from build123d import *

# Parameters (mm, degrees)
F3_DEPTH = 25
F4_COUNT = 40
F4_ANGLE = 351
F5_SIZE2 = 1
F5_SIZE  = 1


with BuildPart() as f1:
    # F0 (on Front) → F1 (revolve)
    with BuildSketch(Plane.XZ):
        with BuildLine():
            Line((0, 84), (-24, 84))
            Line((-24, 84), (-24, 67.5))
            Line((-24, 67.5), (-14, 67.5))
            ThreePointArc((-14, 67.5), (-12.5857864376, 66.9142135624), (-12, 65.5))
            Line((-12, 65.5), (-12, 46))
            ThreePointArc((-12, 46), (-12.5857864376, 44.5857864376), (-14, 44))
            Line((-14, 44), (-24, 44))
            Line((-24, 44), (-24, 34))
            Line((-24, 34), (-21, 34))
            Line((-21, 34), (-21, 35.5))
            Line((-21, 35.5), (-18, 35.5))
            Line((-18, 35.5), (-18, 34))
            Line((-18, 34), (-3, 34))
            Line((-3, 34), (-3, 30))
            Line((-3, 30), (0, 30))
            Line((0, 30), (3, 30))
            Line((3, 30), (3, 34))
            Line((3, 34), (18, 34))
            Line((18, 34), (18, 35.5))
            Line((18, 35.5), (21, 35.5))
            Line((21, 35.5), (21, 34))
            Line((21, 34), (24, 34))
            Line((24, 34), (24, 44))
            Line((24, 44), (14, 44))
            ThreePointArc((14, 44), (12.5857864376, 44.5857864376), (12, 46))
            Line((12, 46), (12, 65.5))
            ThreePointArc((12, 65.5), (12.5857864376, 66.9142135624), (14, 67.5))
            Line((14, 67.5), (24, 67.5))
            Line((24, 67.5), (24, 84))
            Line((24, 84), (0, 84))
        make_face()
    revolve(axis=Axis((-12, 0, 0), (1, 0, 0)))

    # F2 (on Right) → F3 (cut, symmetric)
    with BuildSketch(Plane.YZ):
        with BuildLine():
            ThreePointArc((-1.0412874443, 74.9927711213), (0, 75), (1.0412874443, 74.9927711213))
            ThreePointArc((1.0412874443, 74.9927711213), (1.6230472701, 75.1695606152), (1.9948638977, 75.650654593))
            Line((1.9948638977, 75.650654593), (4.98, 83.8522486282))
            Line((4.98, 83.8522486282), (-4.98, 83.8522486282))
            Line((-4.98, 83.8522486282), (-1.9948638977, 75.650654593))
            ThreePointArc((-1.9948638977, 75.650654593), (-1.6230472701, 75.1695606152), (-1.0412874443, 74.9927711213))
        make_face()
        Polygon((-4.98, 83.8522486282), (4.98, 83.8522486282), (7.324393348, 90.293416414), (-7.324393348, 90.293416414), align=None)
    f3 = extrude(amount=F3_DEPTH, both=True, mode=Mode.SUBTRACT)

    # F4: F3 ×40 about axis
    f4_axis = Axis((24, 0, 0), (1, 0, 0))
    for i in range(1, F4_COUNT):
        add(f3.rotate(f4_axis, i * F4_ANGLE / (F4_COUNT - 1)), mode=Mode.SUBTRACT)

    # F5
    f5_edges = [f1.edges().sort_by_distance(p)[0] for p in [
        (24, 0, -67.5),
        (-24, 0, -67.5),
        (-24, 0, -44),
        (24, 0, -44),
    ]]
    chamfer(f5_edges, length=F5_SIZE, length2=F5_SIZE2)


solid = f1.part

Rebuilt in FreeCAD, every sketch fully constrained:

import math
import FreeCAD as App
import Part
import Sketcher
from FreeCAD import Vector
Q = App.Units.Quantity


def edges_at(feature, points):
    """Names of the edges that pass closest to the given points."""
    edges = feature.Shape.Edges
    near = lambda p: min(range(len(edges)), key=lambda i: edges[i].distToShape(Part.Vertex(*p))[0])
    return sorted({f"Edge{near(p) + 1}" for p in points})

doc = App.newDocument("Part")
params = doc.addObject("Spreadsheet::Sheet", "Params")
for row, (alias, value) in enumerate([
    ("sketch1_radius", "2 mm"),
    ("sketch1_width", "10 mm"),
    ("sketch1_width2", "3 mm"),
    ("sketch1_width3", "15 mm"),
    ("sketch1_width4", "6 mm"),
    ("revolution_angle", "360 deg"),
    ("sketch2_radius", "75 mm"),
    ("sketch2_radius2", "1 mm"),
    ("pocket1_length", "50 mm"),
    ("chamfer_size", "1 mm"),
    ("chamfer_size2", "1 mm"),
], start=1):
    params.set(f"A{row}", alias)
    params.set(f"B{row}", "=" + value)
    params.setAlias(f"B{row}", alias)

body = doc.addObject("PartDesign::Body", "Body")

# Sketch on XZ plane
sketch1 = body.newObject("Sketcher::SketchObject", "Sketch")
sketch1.AttachmentSupport = (doc.getObject("XZ_Plane"), [""])
sketch1.MapMode = "FlatFace"
sketch1.addGeometry(Part.LineSegment(Vector(-24, 84, 0), Vector(-24, 67.5, 0)), False)
sketch1.addGeometry(Part.LineSegment(Vector(-24, 67.5, 0), Vector(-14, 67.5, 0)), False)
sketch1.addGeometry(Part.ArcOfCircle(Part.Circle(Vector(-14, 65.5, 0), Vector(0, 0, 1), 2), math.radians(0), math.radians(90)), False)
sketch1.addGeometry(Part.LineSegment(Vector(-12, 65.5, 0), Vector(-12, 46, 0)), False)
sketch1.addGeometry(Part.ArcOfCircle(Part.Circle(Vector(-14, 46, 0), Vector(0, 0, 1), 2), math.radians(-90), math.radians(0)), False)
sketch1.addGeometry(Part.LineSegment(Vector(-14, 44, 0), Vector(-24, 44, 0)), False)
sketch1.addGeometry(Part.LineSegment(Vector(-24, 44, 0), Vector(-24, 34, 0)), False)
sketch1.addGeometry(Part.LineSegment(Vector(-24, 34, 0), Vector(-21, 34, 0)), False)
sketch1.addGeometry(Part.LineSegment(Vector(-21, 34, 0), Vector(-21, 35.5, 0)), False)
sketch1.addGeometry(Part.LineSegment(Vector(-21, 35.5, 0), Vector(-18, 35.5, 0)), False)
sketch1.addGeometry(Part.LineSegment(Vector(-18, 35.5, 0), Vector(-18, 34, 0)), False)
sketch1.addGeometry(Part.LineSegment(Vector(-18, 34, 0), Vector(-3, 34, 0)), False)
sketch1.addGeometry(Part.LineSegment(Vector(-3, 34, 0), Vector(-3, 30, 0)), False)
sketch1.addGeometry(Part.LineSegment(Vector(-3, 30, 0), Vector(3, 30, 0)), False)
sketch1.addGeometry(Part.LineSegment(Vector(3, 30, 0), Vector(3, 34, 0)), False)
sketch1.addGeometry(Part.LineSegment(Vector(3, 34, 0), Vector(18, 34, 0)), False)
sketch1.addGeometry(Part.LineSegment(Vector(18, 34, 0), Vector(18, 35.5, 0)), False)
sketch1.addGeometry(Part.LineSegment(Vector(18, 35.5, 0), Vector(21, 35.5, 0)), False)
sketch1.addGeometry(Part.LineSegment(Vector(21, 35.5, 0), Vector(21, 34, 0)), False)
sketch1.addGeometry(Part.LineSegment(Vector(21, 34, 0), Vector(24, 34, 0)), False)
sketch1.addGeometry(Part.LineSegment(Vector(24, 34, 0), Vector(24, 44, 0)), False)
sketch1.addGeometry(Part.LineSegment(Vector(24, 44, 0), Vector(14, 44, 0)), False)
sketch1.addGeometry(Part.ArcOfCircle(Part.Circle(Vector(14, 46, 0), Vector(0, 0, 1), 2), math.radians(180), math.radians(270)), False)
sketch1.addGeometry(Part.LineSegment(Vector(12, 46, 0), Vector(12, 65.5, 0)), False)
sketch1.addGeometry(Part.ArcOfCircle(Part.Circle(Vector(14, 65.5, 0), Vector(0, 0, 1), 2), math.radians(90), math.radians(180)), False)
sketch1.addGeometry(Part.LineSegment(Vector(14, 67.5, 0), Vector(24, 67.5, 0)), False)
sketch1.addGeometry(Part.LineSegment(Vector(24, 67.5, 0), Vector(24, 84, 0)), False)
sketch1.addGeometry(Part.LineSegment(Vector(24, 84, 0), Vector(-24, 84, 0)), False)
sketch1.addConstraint(Sketcher.Constraint("Coincident", 0, 2, 1, 1))
sketch1.addConstraint(Sketcher.Constraint("Tangent", 1, 2, 2, 2))
sketch1.addConstraint(Sketcher.Constraint("Tangent", 2, 1, 3, 1))
sketch1.addConstraint(Sketcher.Constraint("Tangent", 3, 2, 4, 2))
sketch1.addConstraint(Sketcher.Constraint("Tangent", 4, 1, 5, 1))
sketch1.addConstraint(Sketcher.Constraint("Coincident", 5, 2, 6, 1))
sketch1.addConstraint(Sketcher.Constraint("Coincident", 6, 2, 7, 1))
sketch1.addConstraint(Sketcher.Constraint("Coincident", 7, 2, 8, 1))
sketch1.addConstraint(Sketcher.Constraint("Coincident", 8, 2, 9, 1))
sketch1.addConstraint(Sketcher.Constraint("Coincident", 9, 2, 10, 1))
sketch1.addConstraint(Sketcher.Constraint("Coincident", 10, 2, 11, 1))
sketch1.addConstraint(Sketcher.Constraint("Coincident", 11, 2, 12, 1))
sketch1.addConstraint(Sketcher.Constraint("Coincident", 12, 2, 13, 1))
sketch1.addConstraint(Sketcher.Constraint("Coincident", 13, 2, 14, 1))
sketch1.addConstraint(Sketcher.Constraint("Coincident", 14, 2, 15, 1))
sketch1.addConstraint(Sketcher.Constraint("Coincident", 15, 2, 16, 1))
sketch1.addConstraint(Sketcher.Constraint("Coincident", 16, 2, 17, 1))
sketch1.addConstraint(Sketcher.Constraint("Coincident", 17, 2, 18, 1))
sketch1.addConstraint(Sketcher.Constraint("Coincident", 18, 2, 19, 1))
sketch1.addConstraint(Sketcher.Constraint("Coincident", 19, 2, 20, 1))
sketch1.addConstraint(Sketcher.Constraint("Coincident", 20, 2, 21, 1))
sketch1.addConstraint(Sketcher.Constraint("Tangent", 21, 2, 22, 2))
sketch1.addConstraint(Sketcher.Constraint("Tangent", 22, 1, 23, 1))
sketch1.addConstraint(Sketcher.Constraint("Tangent", 23, 2, 24, 2))
sketch1.addConstraint(Sketcher.Constraint("Tangent", 24, 1, 25, 1))
sketch1.addConstraint(Sketcher.Constraint("Coincident", 25, 2, 26, 1))
sketch1.addConstraint(Sketcher.Constraint("Coincident", 26, 2, 27, 1))
sketch1.addConstraint(Sketcher.Constraint("Coincident", 27, 2, 0, 1))
sketch1.addConstraint(Sketcher.Constraint("Vertical", 0))
sketch1.addConstraint(Sketcher.Constraint("Horizontal", 1))
sketch1.addConstraint(Sketcher.Constraint("Vertical", 3))
sketch1.addConstraint(Sketcher.Constraint("Horizontal", 5))
sketch1.addConstraint(Sketcher.Constraint("Vertical", 6))
sketch1.addConstraint(Sketcher.Constraint("Horizontal", 7))
sketch1.addConstraint(Sketcher.Constraint("Vertical", 8))
sketch1.addConstraint(Sketcher.Constraint("Horizontal", 9))
sketch1.addConstraint(Sketcher.Constraint("Vertical", 10))
sketch1.addConstraint(Sketcher.Constraint("Horizontal", 11))
sketch1.addConstraint(Sketcher.Constraint("Vertical", 12))
sketch1.addConstraint(Sketcher.Constraint("Horizontal", 13))
sketch1.addConstraint(Sketcher.Constraint("Vertical", 14))
sketch1.addConstraint(Sketcher.Constraint("Horizontal", 15))
sketch1.addConstraint(Sketcher.Constraint("Vertical", 16))
sketch1.addConstraint(Sketcher.Constraint("Horizontal", 17))
sketch1.addConstraint(Sketcher.Constraint("Vertical", 18))
sketch1.addConstraint(Sketcher.Constraint("Horizontal", 19))
sketch1.addConstraint(Sketcher.Constraint("Vertical", 20))
sketch1.addConstraint(Sketcher.Constraint("Horizontal", 21))
sketch1.addConstraint(Sketcher.Constraint("Vertical", 23))
sketch1.addConstraint(Sketcher.Constraint("Horizontal", 25))
sketch1.addConstraint(Sketcher.Constraint("Vertical", 26))
sketch1.addConstraint(Sketcher.Constraint("Horizontal", 27))
sketch1.addConstraint(Sketcher.Constraint("Equal", 2, 4))
sketch1.addConstraint(Sketcher.Constraint("Equal", 4, 22))
sketch1.addConstraint(Sketcher.Constraint("Equal", 22, 24))
sketch1.addConstraint(Sketcher.Constraint("Symmetric", 4, 3, 22, 3, -2))
sketch1.addConstraint(Sketcher.Constraint("Symmetric", 11, 2, 14, 2, -2))
sketch1.addConstraint(Sketcher.Constraint("Symmetric", 9, 2, 16, 2, -2))
sketch1.addConstraint(Sketcher.Constraint("Symmetric", 7, 2, 18, 2, -2))
sketch1.addConstraint(Sketcher.Constraint("Symmetric", 0, 2, 25, 2, -2))
sketch1.addConstraint(Sketcher.Constraint("Horizontal", 7, 2, 10, 2))
sketch1.addConstraint(Sketcher.Constraint("Vertical", 0, 2, 5, 2))
sketch1.addConstraint(Sketcher.Constraint("Vertical", 20, 2, 25, 2))
sketch1.addConstraint(Sketcher.Constraint("Equal", 7, 9))
sketch1.addConstraint(Sketcher.Constraint("Equal", 25, 6))
sketch1.addConstraint(Sketcher.Constraint("Radius", 2, Q("2 mm")))
sketch1.addConstraint(Sketcher.Constraint("DistanceX", 1, 1, 1, 2, Q("10 mm")))
sketch1.addConstraint(Sketcher.Constraint("DistanceX", 7, 1, 7, 2, Q("3 mm")))
sketch1.addConstraint(Sketcher.Constraint("DistanceX", 11, 1, 11, 2, Q("15 mm")))
sketch1.addConstraint(Sketcher.Constraint("DistanceX", 13, 1, 13, 2, Q("6 mm")))
sketch1.addConstraint(Sketcher.Constraint("DistanceY", 12, 2, 12, 1, Q("4 mm")))
sketch1.addConstraint(Sketcher.Constraint("DistanceY", 0, 2, 0, 1, Q("16.5 mm")))
sketch1.addConstraint(Sketcher.Constraint("DistanceY", 3, 2, 3, 1, Q("19.5 mm")))
sketch1.addConstraint(Sketcher.Constraint("DistanceY", 8, 1, 8, 2, Q("1.5 mm")))
sketch1.addConstraint(Sketcher.Constraint("DistanceY", -1, 1, 4, 3, Q("46 mm")))
sketch1.setExpression("Constraints[65]", "Params.sketch1_radius")
sketch1.setExpression("Constraints[66]", "Params.sketch1_width")
sketch1.setExpression("Constraints[67]", "Params.sketch1_width2")
sketch1.setExpression("Constraints[68]", "Params.sketch1_width3")
sketch1.setExpression("Constraints[69]", "Params.sketch1_width4")
revolution = body.newObject("PartDesign::Revolution", "Revolution")
revolution.Profile = sketch1
revolution.ReferenceAxis = (sketch1, ["H_Axis"])
revolution.setExpression("Angle", "Params.revolution_angle")

# Sketch on YZ plane
sketch2 = body.newObject("Sketcher::SketchObject", "Sketch001")
sketch2.AttachmentSupport = (doc.getObject("YZ_Plane"), [""])
sketch2.MapMode = "FlatFace"
sketch2.addGeometry(Part.ArcOfCircle(Part.Circle(Vector(0, 0, 0), Vector(0, 0, 1), 75), math.radians(89.2), math.radians(90.8)), False)
sketch2.addGeometry(Part.ArcOfCircle(Part.Circle(Vector(1.1, 76, 0), Vector(0, 0, 1), 1), math.radians(-91), math.radians(-20)), False)
sketch2.addGeometry(Part.LineSegment(Vector(2, 75.7, 0), Vector(5, 83.9, 0)), False)
sketch2.addGeometry(Part.LineSegment(Vector(5, 83.9, 0), Vector(7.3, 90.3, 0)), False)
sketch2.addGeometry(Part.LineSegment(Vector(7.3, 90.3, 0), Vector(-7.3, 90.3, 0)), False)
sketch2.addGeometry(Part.LineSegment(Vector(-7.3, 90.3, 0), Vector(-5, 83.9, 0)), False)
sketch2.addGeometry(Part.LineSegment(Vector(-5, 83.9, 0), Vector(-2, 75.7, 0)), False)
sketch2.addGeometry(Part.ArcOfCircle(Part.Circle(Vector(-1.1, 76, 0), Vector(0, 0, 1), 1), math.radians(-160), math.radians(-89)), False)
sketch2.addConstraint(Sketcher.Constraint("Tangent", 0, 1, 1, 1))
sketch2.addConstraint(Sketcher.Constraint("Tangent", 1, 2, 2, 1))
sketch2.addConstraint(Sketcher.Constraint("Coincident", 2, 2, 3, 1))
sketch2.addConstraint(Sketcher.Constraint("Coincident", 3, 2, 4, 1))
sketch2.addConstraint(Sketcher.Constraint("Coincident", 4, 2, 5, 1))
sketch2.addConstraint(Sketcher.Constraint("Coincident", 5, 2, 6, 1))
sketch2.addConstraint(Sketcher.Constraint("Tangent", 6, 2, 7, 1))
sketch2.addConstraint(Sketcher.Constraint("Tangent", 7, 2, 0, 2))
sketch2.addConstraint(Sketcher.Constraint("Horizontal", 4))
sketch2.addConstraint(Sketcher.Constraint("Coincident", 0, 3, -1, 1))
sketch2.addConstraint(Sketcher.Constraint("Equal", 1, 7))
sketch2.addConstraint(Sketcher.Constraint("Symmetric", 2, 2, 5, 2, -2))
sketch2.addConstraint(Sketcher.Constraint("Parallel", 2, 3))
sketch2.addConstraint(Sketcher.Constraint("Parallel", 5, 6))
sketch2.addConstraint(Sketcher.Constraint("Horizontal", 1, 3, 7, 3))
sketch2.addConstraint(Sketcher.Constraint("Radius", 0, Q("75 mm")))
sketch2.addConstraint(Sketcher.Constraint("Radius", 1, Q("1 mm")))
sketch2.addConstraint(Sketcher.Constraint("Angle", 2, Q("70 deg")))
sketch2.addConstraint(Sketcher.Constraint("DistanceX", -1, 1, 2, 2, Q("4.98 mm")))
sketch2.addConstraint(Sketcher.Constraint("DistanceX", 4, 2, 4, 1, Q("14.648787 mm")))
sketch2.addConstraint(Sketcher.Constraint("DistanceX", -1, 1, 1, 3, Q("1.055171 mm")))
sketch2.setExpression("Constraints[15]", "Params.sketch2_radius")
sketch2.setExpression("Constraints[16]", "Params.sketch2_radius2")
pocket1 = body.newObject("PartDesign::Pocket", "Pocket")
pocket1.Profile = sketch2
pocket1.setExpression("Length", "Params.pocket1_length")
pocket1.Midplane = True
doc.recompute()

polarpattern = body.newObject("PartDesign::PolarPattern", "PolarPattern")
polarpattern.Originals = [pocket1]
polarpattern.Axis = (doc.getObject("X_Axis"), [""])
polarpattern.Angle = 360
polarpattern.Occurrences = 40
body.Tip = polarpattern
doc.recompute()

chamfer = body.newObject("PartDesign::Chamfer", "Chamfer")
chamfer.Base = (polarpattern, edges_at(polarpattern, [
    (24, 0, -67.5),
    (-24, 0, -67.5),
    (-24, 0, -44),
    (24, 0, -44),
]))
chamfer.ChamferType = "Two distances"
chamfer.setExpression("Size", "Params.chamfer_size")
chamfer.setExpression("Size2", "Params.chamfer_size2")

doc.recompute()
